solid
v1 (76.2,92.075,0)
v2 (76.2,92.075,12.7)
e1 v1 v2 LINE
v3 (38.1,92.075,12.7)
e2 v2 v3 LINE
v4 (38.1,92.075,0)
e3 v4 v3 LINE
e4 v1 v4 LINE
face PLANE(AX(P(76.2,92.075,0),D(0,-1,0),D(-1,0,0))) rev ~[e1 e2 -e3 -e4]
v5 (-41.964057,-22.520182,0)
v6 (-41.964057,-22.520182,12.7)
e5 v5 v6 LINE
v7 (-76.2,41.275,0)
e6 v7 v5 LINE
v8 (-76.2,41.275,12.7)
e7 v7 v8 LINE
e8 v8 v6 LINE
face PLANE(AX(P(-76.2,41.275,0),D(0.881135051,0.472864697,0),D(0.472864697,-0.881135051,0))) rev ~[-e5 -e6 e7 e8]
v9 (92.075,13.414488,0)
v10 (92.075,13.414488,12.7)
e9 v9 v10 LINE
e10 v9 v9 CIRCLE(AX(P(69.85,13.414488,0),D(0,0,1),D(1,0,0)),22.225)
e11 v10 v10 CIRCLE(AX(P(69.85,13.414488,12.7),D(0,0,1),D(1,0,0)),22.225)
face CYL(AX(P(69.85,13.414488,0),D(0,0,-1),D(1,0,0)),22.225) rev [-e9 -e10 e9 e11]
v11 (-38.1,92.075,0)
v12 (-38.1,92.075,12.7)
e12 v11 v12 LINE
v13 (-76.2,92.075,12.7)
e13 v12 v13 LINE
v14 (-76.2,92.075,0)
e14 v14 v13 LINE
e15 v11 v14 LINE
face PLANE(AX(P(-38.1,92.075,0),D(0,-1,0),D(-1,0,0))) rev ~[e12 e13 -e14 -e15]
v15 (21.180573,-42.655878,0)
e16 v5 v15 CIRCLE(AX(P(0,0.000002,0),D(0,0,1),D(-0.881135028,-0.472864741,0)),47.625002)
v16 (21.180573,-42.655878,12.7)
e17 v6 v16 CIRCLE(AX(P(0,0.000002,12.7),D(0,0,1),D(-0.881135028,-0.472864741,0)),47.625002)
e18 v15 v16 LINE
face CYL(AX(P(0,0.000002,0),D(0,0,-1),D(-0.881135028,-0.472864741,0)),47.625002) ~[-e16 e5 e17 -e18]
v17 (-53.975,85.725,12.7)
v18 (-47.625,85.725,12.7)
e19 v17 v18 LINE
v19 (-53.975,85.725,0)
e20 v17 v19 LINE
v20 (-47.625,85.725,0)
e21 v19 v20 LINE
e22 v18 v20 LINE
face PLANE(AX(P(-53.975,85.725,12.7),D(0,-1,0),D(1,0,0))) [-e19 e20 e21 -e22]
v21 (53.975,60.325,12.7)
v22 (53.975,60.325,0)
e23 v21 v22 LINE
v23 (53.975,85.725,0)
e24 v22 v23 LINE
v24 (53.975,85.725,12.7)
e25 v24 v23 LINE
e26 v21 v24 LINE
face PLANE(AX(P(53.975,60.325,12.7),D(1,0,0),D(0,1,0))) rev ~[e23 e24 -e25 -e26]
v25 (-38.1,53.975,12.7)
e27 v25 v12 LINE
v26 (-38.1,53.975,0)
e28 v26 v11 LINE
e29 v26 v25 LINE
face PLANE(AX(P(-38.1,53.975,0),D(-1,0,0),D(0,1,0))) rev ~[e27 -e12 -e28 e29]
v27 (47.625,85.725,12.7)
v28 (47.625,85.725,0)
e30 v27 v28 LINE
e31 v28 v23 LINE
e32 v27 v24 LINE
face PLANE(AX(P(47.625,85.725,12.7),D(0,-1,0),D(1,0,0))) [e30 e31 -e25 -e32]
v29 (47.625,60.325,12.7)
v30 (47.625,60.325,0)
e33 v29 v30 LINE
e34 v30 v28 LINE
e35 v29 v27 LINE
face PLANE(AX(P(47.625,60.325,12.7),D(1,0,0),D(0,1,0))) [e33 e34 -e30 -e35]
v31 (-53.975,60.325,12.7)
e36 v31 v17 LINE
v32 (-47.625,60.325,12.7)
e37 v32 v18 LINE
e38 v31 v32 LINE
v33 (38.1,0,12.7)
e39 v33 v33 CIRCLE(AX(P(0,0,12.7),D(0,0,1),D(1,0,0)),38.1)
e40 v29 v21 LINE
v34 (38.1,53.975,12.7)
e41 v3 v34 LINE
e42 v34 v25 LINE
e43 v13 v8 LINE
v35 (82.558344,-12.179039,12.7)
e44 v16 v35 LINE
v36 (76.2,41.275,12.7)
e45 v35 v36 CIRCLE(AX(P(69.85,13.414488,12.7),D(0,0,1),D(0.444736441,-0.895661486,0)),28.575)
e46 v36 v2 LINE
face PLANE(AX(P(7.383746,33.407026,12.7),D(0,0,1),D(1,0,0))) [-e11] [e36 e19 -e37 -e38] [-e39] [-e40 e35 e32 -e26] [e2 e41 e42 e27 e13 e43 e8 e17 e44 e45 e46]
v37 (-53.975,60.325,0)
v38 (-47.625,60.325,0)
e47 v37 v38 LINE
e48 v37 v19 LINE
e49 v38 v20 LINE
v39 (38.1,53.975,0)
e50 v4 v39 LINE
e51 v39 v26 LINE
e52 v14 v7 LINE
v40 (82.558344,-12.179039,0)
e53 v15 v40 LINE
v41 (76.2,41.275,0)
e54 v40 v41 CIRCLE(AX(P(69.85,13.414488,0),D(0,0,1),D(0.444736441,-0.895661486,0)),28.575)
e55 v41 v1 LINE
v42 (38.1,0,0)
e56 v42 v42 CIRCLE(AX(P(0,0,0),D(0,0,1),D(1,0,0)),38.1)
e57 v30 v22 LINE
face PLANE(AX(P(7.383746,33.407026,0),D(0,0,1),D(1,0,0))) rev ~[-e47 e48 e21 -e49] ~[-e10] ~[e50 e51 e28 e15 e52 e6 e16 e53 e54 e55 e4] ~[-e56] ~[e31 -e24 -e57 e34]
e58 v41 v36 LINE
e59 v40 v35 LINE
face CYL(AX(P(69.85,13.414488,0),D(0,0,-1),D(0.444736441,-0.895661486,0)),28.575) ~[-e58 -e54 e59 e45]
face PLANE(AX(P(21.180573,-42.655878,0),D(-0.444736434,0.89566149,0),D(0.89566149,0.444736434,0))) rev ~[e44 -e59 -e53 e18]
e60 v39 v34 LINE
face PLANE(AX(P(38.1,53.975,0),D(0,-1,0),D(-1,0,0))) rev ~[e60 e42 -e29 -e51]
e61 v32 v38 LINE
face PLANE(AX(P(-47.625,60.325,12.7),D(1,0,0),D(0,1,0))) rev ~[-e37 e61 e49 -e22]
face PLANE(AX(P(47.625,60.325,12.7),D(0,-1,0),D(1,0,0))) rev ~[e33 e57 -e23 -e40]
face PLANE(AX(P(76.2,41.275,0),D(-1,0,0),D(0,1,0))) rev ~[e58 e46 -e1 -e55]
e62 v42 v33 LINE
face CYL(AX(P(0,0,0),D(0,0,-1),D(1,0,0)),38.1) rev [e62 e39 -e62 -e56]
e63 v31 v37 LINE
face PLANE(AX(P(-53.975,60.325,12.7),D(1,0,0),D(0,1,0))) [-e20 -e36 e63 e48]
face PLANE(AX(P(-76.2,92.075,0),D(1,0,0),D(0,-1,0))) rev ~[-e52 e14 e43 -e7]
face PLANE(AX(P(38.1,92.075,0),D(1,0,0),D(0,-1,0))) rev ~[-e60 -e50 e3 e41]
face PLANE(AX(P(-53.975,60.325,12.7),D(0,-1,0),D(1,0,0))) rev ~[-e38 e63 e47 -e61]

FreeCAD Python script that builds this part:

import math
import FreeCAD as App
import Part
import Sketcher

V = App.Vector
Q = App.Units.Quantity

doc = App.newDocument("Part")
body = doc.addObject("PartDesign::Body", "Body")

# Sketch on XY plane
sketch1 = body.newObject("Sketcher::SketchObject", "Sketch")
sketch1.AttachmentSupport = (doc.getObject("XY_Plane"), [""])
sketch1.MapMode = "FlatFace"
sketch1.addGeometry([
    Part.LineSegment(V(-76, 41, 0), V(-42, -23, 0)),  # 0
    Part.ArcOfCircle(Part.Circle(V(0, 0, 0), V(0, 0, 1), 48), math.radians(-152), math.radians(-64)),  # 1
    Part.LineSegment(V(21, -43, 0), V(83, -12, 0)),  # 2
    Part.ArcOfCircle(Part.Circle(V(70, 13, 0), V(0, 0, 1), 29), math.radians(-64), math.radians(77)),  # 3
    Part.LineSegment(V(76, 41, 0), V(76, 92, 0)),  # 4
    Part.LineSegment(V(76, 92, 0), V(38, 92, 0)),  # 5
    Part.LineSegment(V(38, 92, 0), V(38, 54, 0)),  # 6
    Part.LineSegment(V(38, 54, 0), V(-38, 54, 0)),  # 7
    Part.LineSegment(V(-38, 54, 0), V(-38, 92, 0)),  # 8
    Part.LineSegment(V(-38, 92, 0), V(-76, 92, 0)),  # 9
    Part.LineSegment(V(-76, 92, 0), V(-76, 41, 0)),  # 10
    Part.Circle(V(0, 0, 0), V(0, 0, 1), 38),  # 11
    Part.Circle(V(70, 13, 0), V(0, 0, 1), 22),  # 12
], False)
sketch1.addConstraint([
    Sketcher.Constraint("Tangent", 0, 2, 1, 1),
    Sketcher.Constraint("Tangent", 1, 2, 2, 1),
    Sketcher.Constraint("Tangent", 2, 2, 3, 1),
    Sketcher.Constraint("Coincident", 3, 2, 4, 1),
    Sketcher.Constraint("Coincident", 4, 2, 5, 1),
    Sketcher.Constraint("Coincident", 5, 2, 6, 1),
    Sketcher.Constraint("Coincident", 6, 2, 7, 1),
    Sketcher.Constraint("Coincident", 7, 2, 8, 1),
    Sketcher.Constraint("Coincident", 8, 2, 9, 1),
    Sketcher.Constraint("Coincident", 9, 2, 10, 1),
    Sketcher.Constraint("Coincident", 10, 2, 0, 1),
    Sketcher.Constraint("Vertical", 4),
    Sketcher.Constraint("Horizontal", 5),
    Sketcher.Constraint("Vertical", 6),
    Sketcher.Constraint("Horizontal", 7),
    Sketcher.Constraint("Vertical", 8),
    Sketcher.Constraint("Horizontal", 9),
    Sketcher.Constraint("Vertical", 10),
    Sketcher.Constraint("Coincident", 1, 3, -1, 1),
    Sketcher.Constraint("Coincident", 11, 3, -1, 1),
    Sketcher.Constraint("Coincident", 12, 3, 3, 3),
    Sketcher.Constraint("Symmetric", 5, 2, 8, 2, -2),
    Sketcher.Constraint("Symmetric", 3, 2, 10, 2, -2),
    Sketcher.Constraint("Equal", 9, 6),
    Sketcher.Constraint("Diameter", 11, Q("3 in")),
    Sketcher.Constraint("Diameter", 12, Q("1.75 in")),
    Sketcher.Constraint("DistanceX", 7, 2, 7, 1, Q("3 in")),
    Sketcher.Constraint("DistanceY", 4, 1, 4, 2, Q("2 in")),
    Sketcher.Constraint("DistanceX", 5, 2, 5, 1, Q("1.5 in")),
    Sketcher.Constraint("Radius", 1, Q("1.8750001 in")),
    Sketcher.Constraint("Radius", 3, Q("1.125 in")),
    Sketcher.Constraint("DistanceX", -1, 1, 3, 3, Q("2.75 in")),
    Sketcher.Constraint("DistanceY", -1, 1, 3, 2, Q("1.625 in")),
])
pad1 = body.newObject("PartDesign::Pad", "Pad")
pad1.Profile = sketch1
pad1.Length = Q("0.5 in")

# Sketch on XY plane
sketch2 = body.newObject("Sketcher::SketchObject", "Sketch001")
sketch2.AttachmentSupport = (doc.getObject("XY_Plane"), [""])
sketch2.MapMode = "FlatFace"
sketch2.AttachmentOffset = App.Placement(V(0, 0, 0.5 * 25.4), App.Rotation())
sketch2.addGeometry([
    Part.LineSegment(V(-54, 86, 0), V(-54, 60, 0)),
    Part.LineSegment(V(-54, 60, 0), V(-48, 60, 0)),
    Part.LineSegment(V(-48, 60, 0), V(-48, 86, 0)),
    Part.LineSegment(V(-48, 86, 0), V(-54, 86, 0)),
], False)
sketch2.addConstraint([
    Sketcher.Constraint("Coincident", 0, 2, 1, 1),
    Sketcher.Constraint("Coincident", 1, 2, 2, 1),
    Sketcher.Constraint("Coincident", 2, 2, 3, 1),
    Sketcher.Constraint("Coincident", 3, 2, 0, 1),
    Sketcher.Constraint("Vertical", 0),
    Sketcher.Constraint("Horizontal", 1),
    Sketcher.Constraint("Vertical", 2),
    Sketcher.Constraint("Horizontal", 3),
    Sketcher.Constraint("DistanceY", 0, 2, 0, 1, Q("1 in")),
    Sketcher.Constraint("DistanceX", 1, 1, 1, 2, Q("0.25 in")),
    Sketcher.Constraint("DistanceX", 0, 2, -1, 1, Q("2.125 in")),
    Sketcher.Constraint("DistanceY", -1, 1, 0, 2, Q("2.375 in")),
])
pocket1 = body.newObject("PartDesign::Pocket", "Pocket")
pocket1.Profile = sketch2
pocket1.Type = "ThroughAll"

# Sketch on XY plane
sketch3 = body.newObject("Sketcher::SketchObject", "Sketch002")
sketch3.AttachmentSupport = (doc.getObject("XY_Plane"), [""])
sketch3.MapMode = "FlatFace"
sketch3.AttachmentOffset = App.Placement(V(0, 0, 0.5 * 25.4), App.Rotation())
sketch3.addGeometry([
    Part.LineSegment(V(48, 86, 0), V(48, 60, 0)),
    Part.LineSegment(V(48, 60, 0), V(54, 60, 0)),
    Part.LineSegment(V(54, 60, 0), V(54, 86, 0)),
    Part.LineSegment(V(54, 86, 0), V(48, 86, 0)),
], False)
sketch3.addConstraint([
    Sketcher.Constraint("Coincident", 0, 2, 1, 1),
    Sketcher.Constraint("Coincident", 1, 2, 2, 1),
    Sketcher.Constraint("Coincident", 2, 2, 3, 1),
    Sketcher.Constraint("Coincident", 3, 2, 0, 1),
    Sketcher.Constraint("Vertical", 0),
    Sketcher.Constraint("Horizontal", 1),
    Sketcher.Constraint("Vertical", 2),
    Sketcher.Constraint("Horizontal", 3),
    Sketcher.Constraint("DistanceY", 0, 2, 0, 1, Q("1 in")),
    Sketcher.Constraint("DistanceX", 1, 1, 1, 2, Q("0.25 in")),
    Sketcher.Constraint("DistanceX", -1, 1, 0, 2, Q("1.875 in")),
    Sketcher.Constraint("DistanceY", -1, 1, 0, 2, Q("2.375 in")),
])
pocket2 = body.newObject("PartDesign::Pocket", "Pocket001")
pocket2.Profile = sketch3
pocket2.Type = "ThroughAll"

doc.recompute()
